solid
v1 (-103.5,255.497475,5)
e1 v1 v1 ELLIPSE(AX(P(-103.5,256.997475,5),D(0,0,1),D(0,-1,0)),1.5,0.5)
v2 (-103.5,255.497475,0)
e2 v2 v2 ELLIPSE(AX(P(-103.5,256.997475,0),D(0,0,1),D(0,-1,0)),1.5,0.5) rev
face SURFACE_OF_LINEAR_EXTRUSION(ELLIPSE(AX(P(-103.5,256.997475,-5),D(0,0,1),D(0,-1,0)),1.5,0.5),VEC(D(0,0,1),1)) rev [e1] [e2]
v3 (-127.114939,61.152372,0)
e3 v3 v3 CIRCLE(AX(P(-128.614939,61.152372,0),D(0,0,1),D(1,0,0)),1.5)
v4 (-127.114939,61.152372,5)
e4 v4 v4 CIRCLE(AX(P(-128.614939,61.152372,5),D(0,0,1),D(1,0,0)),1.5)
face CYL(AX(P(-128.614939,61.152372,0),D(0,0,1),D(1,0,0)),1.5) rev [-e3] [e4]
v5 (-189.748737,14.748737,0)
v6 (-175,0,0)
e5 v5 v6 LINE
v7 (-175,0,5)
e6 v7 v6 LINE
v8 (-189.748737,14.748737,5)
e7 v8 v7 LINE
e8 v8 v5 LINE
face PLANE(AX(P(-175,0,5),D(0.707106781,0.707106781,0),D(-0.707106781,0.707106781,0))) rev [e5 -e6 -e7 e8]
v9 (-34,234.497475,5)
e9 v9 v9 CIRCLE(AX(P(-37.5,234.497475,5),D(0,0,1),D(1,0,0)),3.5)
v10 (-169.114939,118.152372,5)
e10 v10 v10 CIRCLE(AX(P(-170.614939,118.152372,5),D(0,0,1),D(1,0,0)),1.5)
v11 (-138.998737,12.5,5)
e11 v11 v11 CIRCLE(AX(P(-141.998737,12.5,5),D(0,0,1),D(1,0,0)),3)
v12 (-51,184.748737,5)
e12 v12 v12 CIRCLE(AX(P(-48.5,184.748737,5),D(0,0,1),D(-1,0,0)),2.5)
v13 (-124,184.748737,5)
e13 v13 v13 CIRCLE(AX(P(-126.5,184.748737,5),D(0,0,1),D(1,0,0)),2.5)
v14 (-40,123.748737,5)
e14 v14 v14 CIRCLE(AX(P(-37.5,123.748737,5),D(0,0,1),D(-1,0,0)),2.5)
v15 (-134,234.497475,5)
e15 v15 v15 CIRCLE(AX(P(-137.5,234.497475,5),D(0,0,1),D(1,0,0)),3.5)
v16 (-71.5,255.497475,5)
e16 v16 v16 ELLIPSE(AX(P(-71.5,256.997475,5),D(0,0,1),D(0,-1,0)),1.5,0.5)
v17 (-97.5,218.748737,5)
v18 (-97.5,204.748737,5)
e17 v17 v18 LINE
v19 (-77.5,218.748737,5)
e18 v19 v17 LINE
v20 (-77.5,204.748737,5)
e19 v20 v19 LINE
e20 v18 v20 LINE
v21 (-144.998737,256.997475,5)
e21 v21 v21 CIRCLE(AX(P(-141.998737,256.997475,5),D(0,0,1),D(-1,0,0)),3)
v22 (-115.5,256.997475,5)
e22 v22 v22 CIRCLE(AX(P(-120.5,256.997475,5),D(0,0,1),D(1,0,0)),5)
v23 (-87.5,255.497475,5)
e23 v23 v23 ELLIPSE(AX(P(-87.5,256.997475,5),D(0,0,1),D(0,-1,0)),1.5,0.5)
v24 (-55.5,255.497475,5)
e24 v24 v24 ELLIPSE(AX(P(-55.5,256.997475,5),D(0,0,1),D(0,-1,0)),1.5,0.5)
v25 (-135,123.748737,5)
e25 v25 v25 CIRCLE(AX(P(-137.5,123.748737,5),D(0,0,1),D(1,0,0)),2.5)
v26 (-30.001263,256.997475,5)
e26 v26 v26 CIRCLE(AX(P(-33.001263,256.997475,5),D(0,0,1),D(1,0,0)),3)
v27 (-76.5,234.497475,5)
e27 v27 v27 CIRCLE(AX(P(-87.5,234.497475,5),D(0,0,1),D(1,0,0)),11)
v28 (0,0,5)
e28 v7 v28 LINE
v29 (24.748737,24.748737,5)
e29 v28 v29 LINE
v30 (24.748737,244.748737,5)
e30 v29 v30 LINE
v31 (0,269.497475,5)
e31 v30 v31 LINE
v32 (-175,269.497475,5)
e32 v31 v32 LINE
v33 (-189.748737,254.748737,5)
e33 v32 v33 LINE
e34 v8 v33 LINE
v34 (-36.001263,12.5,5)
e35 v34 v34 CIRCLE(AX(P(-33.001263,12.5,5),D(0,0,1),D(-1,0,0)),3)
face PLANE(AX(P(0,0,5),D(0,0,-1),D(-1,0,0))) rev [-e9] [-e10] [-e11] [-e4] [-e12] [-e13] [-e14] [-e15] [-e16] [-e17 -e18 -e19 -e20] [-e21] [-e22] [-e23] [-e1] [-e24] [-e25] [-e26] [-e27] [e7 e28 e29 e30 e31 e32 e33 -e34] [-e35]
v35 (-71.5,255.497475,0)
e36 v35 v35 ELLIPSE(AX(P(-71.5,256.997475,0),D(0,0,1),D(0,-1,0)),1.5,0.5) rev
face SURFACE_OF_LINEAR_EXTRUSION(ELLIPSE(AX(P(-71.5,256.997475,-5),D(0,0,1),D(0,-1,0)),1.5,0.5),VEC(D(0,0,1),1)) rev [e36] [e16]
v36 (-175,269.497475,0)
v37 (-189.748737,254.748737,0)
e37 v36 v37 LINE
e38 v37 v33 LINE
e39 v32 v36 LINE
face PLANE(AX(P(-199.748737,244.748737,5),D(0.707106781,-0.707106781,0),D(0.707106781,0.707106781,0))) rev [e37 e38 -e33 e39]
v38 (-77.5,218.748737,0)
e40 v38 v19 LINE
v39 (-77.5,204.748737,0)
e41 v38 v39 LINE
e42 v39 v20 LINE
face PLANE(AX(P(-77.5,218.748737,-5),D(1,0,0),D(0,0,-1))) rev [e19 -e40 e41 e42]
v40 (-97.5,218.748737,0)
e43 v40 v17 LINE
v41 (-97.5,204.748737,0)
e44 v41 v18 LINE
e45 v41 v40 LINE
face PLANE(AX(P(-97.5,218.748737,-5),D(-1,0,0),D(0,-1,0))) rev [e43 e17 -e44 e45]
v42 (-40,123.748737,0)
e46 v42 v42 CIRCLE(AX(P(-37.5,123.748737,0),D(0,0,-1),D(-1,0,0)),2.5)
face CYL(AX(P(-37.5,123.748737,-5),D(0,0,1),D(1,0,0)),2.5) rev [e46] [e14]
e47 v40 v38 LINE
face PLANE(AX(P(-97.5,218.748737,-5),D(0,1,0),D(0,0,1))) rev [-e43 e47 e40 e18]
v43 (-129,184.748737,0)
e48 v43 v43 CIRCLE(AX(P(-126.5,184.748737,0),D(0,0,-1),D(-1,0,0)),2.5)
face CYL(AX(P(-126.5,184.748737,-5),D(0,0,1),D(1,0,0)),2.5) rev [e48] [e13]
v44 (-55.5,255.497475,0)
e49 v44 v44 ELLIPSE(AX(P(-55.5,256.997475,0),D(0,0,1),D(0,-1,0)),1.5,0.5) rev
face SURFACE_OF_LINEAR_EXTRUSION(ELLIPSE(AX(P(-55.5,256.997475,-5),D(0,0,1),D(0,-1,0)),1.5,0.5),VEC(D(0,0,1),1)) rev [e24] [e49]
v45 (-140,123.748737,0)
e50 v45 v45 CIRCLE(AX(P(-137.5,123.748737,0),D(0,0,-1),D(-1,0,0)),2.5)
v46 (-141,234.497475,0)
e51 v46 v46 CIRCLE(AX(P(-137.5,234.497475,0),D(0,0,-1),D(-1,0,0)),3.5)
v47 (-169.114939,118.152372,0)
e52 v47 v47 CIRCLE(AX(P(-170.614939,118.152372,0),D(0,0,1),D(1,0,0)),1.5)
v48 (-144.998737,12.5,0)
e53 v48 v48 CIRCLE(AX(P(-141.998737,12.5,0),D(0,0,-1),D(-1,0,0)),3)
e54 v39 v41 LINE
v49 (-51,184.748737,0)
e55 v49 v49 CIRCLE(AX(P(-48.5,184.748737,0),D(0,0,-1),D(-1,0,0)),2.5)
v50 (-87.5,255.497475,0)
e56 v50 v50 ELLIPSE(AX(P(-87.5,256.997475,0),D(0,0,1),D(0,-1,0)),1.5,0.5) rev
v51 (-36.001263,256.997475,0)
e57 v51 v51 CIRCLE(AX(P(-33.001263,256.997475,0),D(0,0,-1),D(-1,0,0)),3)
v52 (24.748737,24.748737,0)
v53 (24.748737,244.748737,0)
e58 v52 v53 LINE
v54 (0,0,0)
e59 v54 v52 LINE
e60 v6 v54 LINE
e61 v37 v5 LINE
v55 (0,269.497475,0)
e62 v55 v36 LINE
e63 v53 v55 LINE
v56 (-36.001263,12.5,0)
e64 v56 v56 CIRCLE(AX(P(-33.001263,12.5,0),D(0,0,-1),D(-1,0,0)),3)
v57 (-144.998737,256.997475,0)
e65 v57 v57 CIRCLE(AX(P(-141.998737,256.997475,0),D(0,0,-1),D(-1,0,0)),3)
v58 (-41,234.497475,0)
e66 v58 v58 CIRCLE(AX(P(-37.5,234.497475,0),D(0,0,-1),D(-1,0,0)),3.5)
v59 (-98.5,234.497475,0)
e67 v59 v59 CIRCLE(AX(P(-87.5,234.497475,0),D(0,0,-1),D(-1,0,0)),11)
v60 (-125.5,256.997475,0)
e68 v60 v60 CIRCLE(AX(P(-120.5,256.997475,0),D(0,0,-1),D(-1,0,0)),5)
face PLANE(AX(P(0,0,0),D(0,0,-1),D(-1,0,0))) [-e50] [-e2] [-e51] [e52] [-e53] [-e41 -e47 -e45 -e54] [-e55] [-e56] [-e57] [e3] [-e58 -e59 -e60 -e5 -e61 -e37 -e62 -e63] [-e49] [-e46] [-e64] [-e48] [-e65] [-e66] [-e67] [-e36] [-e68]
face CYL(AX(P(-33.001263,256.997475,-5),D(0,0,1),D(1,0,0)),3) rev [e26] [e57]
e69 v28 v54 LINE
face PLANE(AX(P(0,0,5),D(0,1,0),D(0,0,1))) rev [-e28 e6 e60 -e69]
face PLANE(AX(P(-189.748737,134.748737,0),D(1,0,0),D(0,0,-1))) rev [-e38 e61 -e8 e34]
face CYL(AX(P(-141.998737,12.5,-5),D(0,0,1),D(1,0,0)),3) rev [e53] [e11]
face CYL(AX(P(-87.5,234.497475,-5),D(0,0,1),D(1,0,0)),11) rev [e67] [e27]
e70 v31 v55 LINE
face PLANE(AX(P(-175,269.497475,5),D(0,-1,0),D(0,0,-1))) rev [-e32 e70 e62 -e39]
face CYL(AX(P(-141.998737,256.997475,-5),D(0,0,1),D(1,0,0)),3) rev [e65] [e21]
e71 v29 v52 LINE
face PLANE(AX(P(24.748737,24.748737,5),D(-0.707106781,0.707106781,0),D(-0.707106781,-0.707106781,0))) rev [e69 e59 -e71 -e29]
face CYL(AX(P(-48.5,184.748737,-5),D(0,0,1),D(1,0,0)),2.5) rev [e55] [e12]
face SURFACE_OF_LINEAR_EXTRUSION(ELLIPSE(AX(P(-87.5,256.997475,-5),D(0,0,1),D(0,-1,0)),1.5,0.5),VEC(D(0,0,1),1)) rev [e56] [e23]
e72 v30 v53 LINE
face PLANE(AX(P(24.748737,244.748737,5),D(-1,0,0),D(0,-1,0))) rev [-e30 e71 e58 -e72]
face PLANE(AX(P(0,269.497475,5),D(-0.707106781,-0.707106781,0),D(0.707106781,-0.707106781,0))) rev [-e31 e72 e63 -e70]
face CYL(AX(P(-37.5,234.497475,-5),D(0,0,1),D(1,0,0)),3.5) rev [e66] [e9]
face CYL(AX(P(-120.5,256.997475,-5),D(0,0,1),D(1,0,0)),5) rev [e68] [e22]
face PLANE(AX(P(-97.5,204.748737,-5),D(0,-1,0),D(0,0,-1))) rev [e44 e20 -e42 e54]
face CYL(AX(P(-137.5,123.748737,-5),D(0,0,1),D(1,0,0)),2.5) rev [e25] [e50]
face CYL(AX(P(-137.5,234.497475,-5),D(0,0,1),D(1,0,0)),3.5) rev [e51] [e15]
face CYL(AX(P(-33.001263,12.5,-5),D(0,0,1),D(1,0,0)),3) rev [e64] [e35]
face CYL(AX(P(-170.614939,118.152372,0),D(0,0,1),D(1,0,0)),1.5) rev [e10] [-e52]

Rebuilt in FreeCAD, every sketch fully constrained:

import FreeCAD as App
import Part
import Sketcher
from FreeCAD import Vector
Q = App.Units.Quantity

doc = App.newDocument("Part")
params = doc.addObject("Spreadsheet::Sheet", "Params")
for row, (alias, value) in enumerate([
    ("sketch1_width", "175 mm"),
    ("sketch1_height", "220 mm"),
    ("sketch1_length", "35 mm"),
    ("pad1_length", "5 mm"),
    ("sketch2_diameter", "10 mm"),
    ("pocket1_length", "10 mm"),
    ("sketch3_diameter", "22 mm"),
    ("sketch3_diameter2", "7 mm"),
    ("sketch3_width", "20 mm"),
    ("sketch3_height", "14 mm"),
    ("pocket2_length", "10 mm"),
    ("sketch4_diameter", "6 mm"),
    ("sketch4_diameter2", "5 mm"),
    ("pocket3_length", "10 mm"),
    ("sketch5_diameter", "3 mm"),
    ("sketch5_width", "10 mm"),
    ("pocket4_length", "5 mm"),
], start=1):
    params.set(f"A{row}", alias)
    params.set(f"B{row}", "=" + value)
    params.setAlias(f"B{row}", alias)

body = doc.addObject("PartDesign::Body", "Body")

# Sketch on XY plane
sketch1 = body.newObject("Sketcher::SketchObject", "Sketch")
sketch1.AttachmentSupport = (doc.getObject("XY_Plane"), [""])
sketch1.MapMode = "FlatFace"
sketch1.addGeometry(Part.LineSegment(Vector(-175, 0, 0), Vector(0, 0, 0)), False)
sketch1.addGeometry(Part.LineSegment(Vector(0, 0, 0), Vector(24.748737, 24.748737, 0)), False)
sketch1.addGeometry(Part.LineSegment(Vector(24.748737, 24.748737, 0), Vector(24.748737, 244.748737, 0)), False)
sketch1.addGeometry(Part.LineSegment(Vector(24.748737, 244.748737, 0), Vector(0, 269.497475, 0)), False)
sketch1.addGeometry(Part.LineSegment(Vector(0, 269.497475, 0), Vector(-175, 269.497475, 0)), False)
sketch1.addGeometry(Part.LineSegment(Vector(-175, 269.497475, 0), Vector(-199.748737, 244.748737, 0)), False)
sketch1.addGeometry(Part.LineSegment(Vector(-199.748737, 244.748737, 0), Vector(-199.748737, 24.748737, 0)), False)
sketch1.addGeometry(Part.LineSegment(Vector(-199.748737, 24.748737, 0), Vector(-175, 0, 0)), False)
sketch1.addConstraint(Sketcher.Constraint("Coincident", 0, 2, 1, 1))
sketch1.addConstraint(Sketcher.Constraint("Coincident", 1, 2, 2, 1))
sketch1.addConstraint(Sketcher.Constraint("Coincident", 2, 2, 3, 1))
sketch1.addConstraint(Sketcher.Constraint("Coincident", 3, 2, 4, 1))
sketch1.addConstraint(Sketcher.Constraint("Coincident", 4, 2, 5, 1))
sketch1.addConstraint(Sketcher.Constraint("Coincident", 5, 2, 6, 1))
sketch1.addConstraint(Sketcher.Constraint("Coincident", 6, 2, 7, 1))
sketch1.addConstraint(Sketcher.Constraint("Coincident", 7, 2, 0, 1))
sketch1.addConstraint(Sketcher.Constraint("Horizontal", 0))
sketch1.addConstraint(Sketcher.Constraint("Vertical", 2))
sketch1.addConstraint(Sketcher.Constraint("Horizontal", 4))
sketch1.addConstraint(Sketcher.Constraint("Vertical", 6))
sketch1.addConstraint(Sketcher.Constraint("Coincident", 0, 2, -1, 1))
sketch1.addConstraint(Sketcher.Constraint("PointOnObject", 3, 2, -2))
sketch1.addConstraint(Sketcher.Constraint("Perpendicular", 1, 3))
sketch1.addConstraint(Sketcher.Constraint("Perpendicular", 3, 5))
sketch1.addConstraint(Sketcher.Constraint("Perpendicular", 5, 7))
sketch1.addConstraint(Sketcher.Constraint("Horizontal", 2, 2, 5, 2))
sketch1.addConstraint(Sketcher.Constraint("Horizontal", 1, 2, 6, 2))
sketch1.addConstraint(Sketcher.Constraint("Vertical", 4, 2, 7, 2))
sketch1.addConstraint(Sketcher.Constraint("DistanceX", 0, 1, 0, 2, Q("175 mm")))
sketch1.addConstraint(Sketcher.Constraint("DistanceY", 2, 1, 2, 2, Q("220 mm")))
sketch1.addConstraint(Sketcher.Constraint("Distance", 1, Q("35 mm")))
sketch1.setExpression("Constraints[20]", "Params.sketch1_width")
sketch1.setExpression("Constraints[21]", "Params.sketch1_height")
sketch1.setExpression("Constraints[22]", "Params.sketch1_length")
pad1 = body.newObject("PartDesign::Pad", "Pad")
pad1.Profile = sketch1
pad1.setExpression("Length", "Params.pad1_length")

# Sketch on XY plane
sketch2 = body.newObject("Sketcher::SketchObject", "Sketch001")
sketch2.AttachmentSupport = (doc.getObject("XY_Plane"), [""])
sketch2.MapMode = "FlatFace"
sketch2.AttachmentOffset = App.Placement(Vector(0, 0, 5), App.Rotation())
sketch2.addGeometry(Part.Circle(Vector(-120.5, 256.997475, 0), Vector(0, 0, 1), 5), False)
sketch2.addConstraint(Sketcher.Constraint("Diameter", 0, Q("10 mm")))
sketch2.addConstraint(Sketcher.Constraint("DistanceX", 0, 3, -1, 1, Q("120.5 mm")))
sketch2.addConstraint(Sketcher.Constraint("DistanceY", -1, 1, 0, 3, Q("256.997475 mm")))
sketch2.setExpression("Constraints[0]", "Params.sketch2_diameter")
pocket1 = body.newObject("PartDesign::Pocket", "Pocket")
pocket1.Profile = sketch2
pocket1.setExpression("Length", "Params.pocket1_length")

# Sketch on XY plane
sketch3 = body.newObject("Sketcher::SketchObject", "Sketch002")
sketch3.AttachmentSupport = (doc.getObject("XY_Plane"), [""])
sketch3.MapMode = "FlatFace"
sketch3.AttachmentOffset = App.Placement(Vector(0, 0, 5), App.Rotation())
sketch3.addGeometry(Part.Circle(Vector(-87.5, 234.497475, 0), Vector(0, 0, 1), 11), False)
sketch3.addGeometry(Part.Circle(Vector(-137.5, 234.497475, 0), Vector(0, 0, 1), 3.5), False)
sketch3.addGeometry(Part.Circle(Vector(-37.5, 234.497475, 0), Vector(0, 0, 1), 3.5), False)
sketch3.addGeometry(Part.Ellipse(Vector(-103.5, 255.497475, 0), Vector(-103, 256.997475, 0), Vector(-103.5, 256.997475, 0)), False)
sketch3.addGeometry(Part.Ellipse(Vector(-87.5, 255.497475, 0), Vector(-87, 256.997475, 0), Vector(-87.5, 256.997475, 0)), False)
sketch3.addGeometry(Part.Ellipse(Vector(-71.5, 255.497475, 0), Vector(-71, 256.997475, 0), Vector(-71.5, 256.997475, 0)), False)
sketch3.addGeometry(Part.Ellipse(Vector(-55.5, 255.497475, 0), Vector(-55, 256.997475, 0), Vector(-55.5, 256.997475, 0)), False)
sketch3.addGeometry(Part.LineSegment(Vector(-97.5, 218.748737, 0), Vector(-97.5, 204.748737, 0)), False)
sketch3.addGeometry(Part.LineSegment(Vector(-97.5, 204.748737, 0), Vector(-77.5, 204.748737, 0)), False)
sketch3.addGeometry(Part.LineSegment(Vector(-77.5, 204.748737, 0), Vector(-77.5, 218.748737, 0)), False)
sketch3.addGeometry(Part.LineSegment(Vector(-77.5, 218.748737, 0), Vector(-97.5, 218.748737, 0)), False)
sketch3.addConstraint(Sketcher.Constraint("Block", 3))
sketch3.addConstraint(Sketcher.Constraint("Block", 4))
sketch3.addConstraint(Sketcher.Constraint("Block", 5))
sketch3.addConstraint(Sketcher.Constraint("Block", 6))
sketch3.addConstraint(Sketcher.Constraint("Coincident", 7, 2, 8, 1))
sketch3.addConstraint(Sketcher.Constraint("Coincident", 8, 2, 9, 1))
sketch3.addConstraint(Sketcher.Constraint("Coincident", 9, 2, 10, 1))
sketch3.addConstraint(Sketcher.Constraint("Coincident", 10, 2, 7, 1))
sketch3.addConstraint(Sketcher.Constraint("Vertical", 7))
sketch3.addConstraint(Sketcher.Constraint("Horizontal", 8))
sketch3.addConstraint(Sketcher.Constraint("Vertical", 9))
sketch3.addConstraint(Sketcher.Constraint("Horizontal", 10))
sketch3.addConstraint(Sketcher.Constraint("Equal", 1, 2))
sketch3.addConstraint(Sketcher.Constraint("Horizontal", 0, 3, 1, 3))
sketch3.addConstraint(Sketcher.Constraint("Horizontal", 1, 3, 2, 3))
sketch3.addConstraint(Sketcher.Constraint("Diameter", 0, Q("22 mm")))
sketch3.addConstraint(Sketcher.Constraint("Diameter", 1, Q("7 mm")))
sketch3.addConstraint(Sketcher.Constraint("DistanceX", 8, 1, 8, 2, Q("20 mm")))
sketch3.addConstraint(Sketcher.Constraint("DistanceY", 7, 2, 7, 1, Q("14 mm")))
sketch3.addConstraint(Sketcher.Constraint("DistanceX", 1, 3, 0, 3, Q("50 mm")))
sketch3.addConstraint(Sketcher.Constraint("DistanceX", 0, 3, 2, 3, Q("50 mm")))
sketch3.addConstraint(Sketcher.Constraint("DistanceX", 7, 2, 0, 3, Q("10 mm")))
sketch3.addConstraint(Sketcher.Constraint("DistanceX", 0, 3, -1, 1, Q("87.5 mm")))
sketch3.addConstraint(Sketcher.Constraint("DistanceY", -1, 1, 0, 3, Q("234.497475 mm")))
sketch3.addConstraint(Sketcher.Constraint("DistanceY", -1, 1, 7, 2, Q("204.748737 mm")))
sketch3.setExpression("Constraints[15]", "Params.sketch3_diameter")
sketch3.setExpression("Constraints[16]", "Params.sketch3_diameter2")
sketch3.setExpression("Constraints[17]", "Params.sketch3_width")
sketch3.setExpression("Constraints[18]", "Params.sketch3_height")
pocket2 = body.newObject("PartDesign::Pocket", "Pocket001")
pocket2.Profile = sketch3
pocket2.setExpression("Length", "Params.pocket2_length")

# Sketch on XY plane
sketch4 = body.newObject("Sketcher::SketchObject", "Sketch003")
sketch4.AttachmentSupport = (doc.getObject("XY_Plane"), [""])
sketch4.MapMode = "FlatFace"
sketch4.AttachmentOffset = App.Placement(Vector(0, 0, 5), App.Rotation())
sketch4.addGeometry(Part.Circle(Vector(-141.998737, 12.5, 0), Vector(0, 0, 1), 3), False)
sketch4.addGeometry(Part.Circle(Vector(-141.998737, 256.997475, 0), Vector(0, 0, 1), 3), False)
sketch4.addGeometry(Part.Circle(Vector(-33.001263, 12.5, 0), Vector(0, 0, 1), 3), False)
sketch4.addGeometry(Part.Circle(Vector(-33.001263, 256.997475, 0), Vector(0, 0, 1), 3), False)
sketch4.addGeometry(Part.Circle(Vector(-137.5, 123.748737, 0), Vector(0, 0, 1), 2.5), False)
sketch4.addGeometry(Part.Circle(Vector(-126.5, 184.748737, 0), Vector(0, 0, 1), 2.5), False)
sketch4.addGeometry(Part.Circle(Vector(-37.5, 123.748737, 0), Vector(0, 0, 1), 2.5), False)
sketch4.addGeometry(Part.Circle(Vector(-48.5, 184.748737, 0), Vector(0, 0, 1), 2.5), False)
sketch4.addConstraint(Sketcher.Constraint("Equal", 0, 1))
sketch4.addConstraint(Sketcher.Constraint("Equal", 1, 2))
sketch4.addConstraint(Sketcher.Constraint("Equal", 2, 3))
sketch4.addConstraint(Sketcher.Constraint("Equal", 4, 5))
sketch4.addConstraint(Sketcher.Constraint("Equal", 5, 6))
sketch4.addConstraint(Sketcher.Constraint("Equal", 6, 7))
sketch4.addConstraint(Sketcher.Constraint("Horizontal", 0, 3, 2, 3))
sketch4.addConstraint(Sketcher.Constraint("Horizontal", 1, 3, 3, 3))
sketch4.addConstraint(Sketcher.Constraint("Horizontal", 4, 3, 6, 3))
sketch4.addConstraint(Sketcher.Constraint("Horizontal", 5, 3, 7, 3))
sketch4.addConstraint(Sketcher.Constraint("Vertical", 0, 3, 1, 3))
sketch4.addConstraint(Sketcher.Constraint("Vertical", 2, 3, 3, 3))
sketch4.addConstraint(Sketcher.Constraint("Diameter", 0, Q("6 mm")))
sketch4.addConstraint(Sketcher.Constraint("Diameter", 4, Q("5 mm")))
sketch4.addConstraint(Sketcher.Constraint("DistanceX", 4, 3, 5, 3, Q("11 mm")))
sketch4.addConstraint(Sketcher.Constraint("DistanceY", 4, 3, 5, 3, Q("61 mm")))
sketch4.addConstraint(Sketcher.Constraint("DistanceX", 4, 3, 6, 3, Q("100 mm")))
sketch4.addConstraint(Sketcher.Constraint("DistanceX", 7, 3, 6, 3, Q("11 mm")))
sketch4.addConstraint(Sketcher.Constraint("DistanceY", -1, 1, 0, 3, Q("12.5 mm")))
sketch4.addConstraint(Sketcher.Constraint("DistanceX", 4, 3, -1, 1, Q("137.5 mm")))
sketch4.addConstraint(Sketcher.Constraint("DistanceX", 0, 3, -1, 1, Q("141.998737 mm")))
sketch4.addConstraint(Sketcher.Constraint("DistanceY", -1, 1, 1, 3, Q("256.997475 mm")))
sketch4.addConstraint(Sketcher.Constraint("DistanceX", 2, 3, -1, 1, Q("33.001263 mm")))
sketch4.addConstraint(Sketcher.Constraint("DistanceY", -1, 1, 4, 3, Q("123.748737 mm")))
sketch4.setExpression("Constraints[12]", "Params.sketch4_diameter")
sketch4.setExpression("Constraints[13]", "Params.sketch4_diameter2")
pocket3 = body.newObject("PartDesign::Pocket", "Pocket002")
pocket3.Profile = sketch4
pocket3.setExpression("Length", "Params.pocket3_length")

# Sketch on XY plane
sketch5 = body.newObject("Sketcher::SketchObject", "Sketch004")
sketch5.AttachmentSupport = (doc.getObject("XY_Plane"), [""])
sketch5.MapMode = "FlatFace"
sketch5.AttachmentOffset = App.Placement(Vector(0, 0, 5), App.Rotation())
sketch5.addGeometry(Part.Circle(Vector(-170.614939, 118.152372, 0), Vector(0, 0, 1), 1.5), False)
sketch5.addGeometry(Part.Circle(Vector(-128.614939, 61.152372, 0), Vector(0, 0, 1), 1.5), False)
sketch5.addGeometry(Part.LineSegment(Vector(-189.748737, -12.261016, 0), Vector(-189.748737, 274.920828, 0)), False)
sketch5.addGeometry(Part.LineSegment(Vector(-189.748737, 274.920828, 0), Vector(-199.748737, 274.920828, 0)), False)
sketch5.addGeometry(Part.LineSegment(Vector(-199.748737, 274.920828, 0), Vector(-199.748737, -12.261016, 0)), False)
sketch5.addGeometry(Part.LineSegment(Vector(-199.748737, -12.261016, 0), Vector(-189.748737, -12.261016, 0)), False)
sketch5.addConstraint(Sketcher.Constraint("Coincident", 2, 2, 3, 1))
sketch5.addConstraint(Sketcher.Constraint("Coincident", 3, 2, 4, 1))
sketch5.addConstraint(Sketcher.Constraint("Coincident", 4, 2, 5, 1))
sketch5.addConstraint(Sketcher.Constraint("Coincident", 5, 2, 2, 1))
sketch5.addConstraint(Sketcher.Constraint("Vertical", 2))
sketch5.addConstraint(Sketcher.Constraint("Horizontal", 3))
sketch5.addConstraint(Sketcher.Constraint("Vertical", 4))
sketch5.addConstraint(Sketcher.Constraint("Horizontal", 5))
sketch5.addConstraint(Sketcher.Constraint("Equal", 0, 1))
sketch5.addConstraint(Sketcher.Constraint("Diameter", 0, Q("3 mm")))
sketch5.addConstraint(Sketcher.Constraint("DistanceX", 3, 2, 3, 1, Q("10 mm")))
sketch5.addConstraint(Sketcher.Constraint("DistanceX", 0, 3, 1, 3, Q("42 mm")))
sketch5.addConstraint(Sketcher.Constraint("DistanceY", 1, 3, 0, 3, Q("57 mm")))
sketch5.addConstraint(Sketcher.Constraint("DistanceY", 2, 1, 2, 2, Q("287.181844 mm")))
sketch5.addConstraint(Sketcher.Constraint("DistanceX", 0, 3, -1, 1, Q("170.614939 mm")))
sketch5.addConstraint(Sketcher.Constraint("DistanceY", -1, 1, 0, 3, Q("118.152372 mm")))
sketch5.addConstraint(Sketcher.Constraint("DistanceY", 4, 2, 1, 3, Q("73.413388 mm")))
sketch5.addConstraint(Sketcher.Constraint("DistanceX", 2, 2, -1, 1, Q("189.748737 mm")))
sketch5.setExpression("Constraints[9]", "Params.sketch5_diameter")
sketch5.setExpression("Constraints[10]", "Params.sketch5_width")
pocket4 = body.newObject("PartDesign::Pocket", "Pocket003")
pocket4.Profile = sketch5
pocket4.setExpression("Length", "Params.pocket4_length")

doc.recompute()
